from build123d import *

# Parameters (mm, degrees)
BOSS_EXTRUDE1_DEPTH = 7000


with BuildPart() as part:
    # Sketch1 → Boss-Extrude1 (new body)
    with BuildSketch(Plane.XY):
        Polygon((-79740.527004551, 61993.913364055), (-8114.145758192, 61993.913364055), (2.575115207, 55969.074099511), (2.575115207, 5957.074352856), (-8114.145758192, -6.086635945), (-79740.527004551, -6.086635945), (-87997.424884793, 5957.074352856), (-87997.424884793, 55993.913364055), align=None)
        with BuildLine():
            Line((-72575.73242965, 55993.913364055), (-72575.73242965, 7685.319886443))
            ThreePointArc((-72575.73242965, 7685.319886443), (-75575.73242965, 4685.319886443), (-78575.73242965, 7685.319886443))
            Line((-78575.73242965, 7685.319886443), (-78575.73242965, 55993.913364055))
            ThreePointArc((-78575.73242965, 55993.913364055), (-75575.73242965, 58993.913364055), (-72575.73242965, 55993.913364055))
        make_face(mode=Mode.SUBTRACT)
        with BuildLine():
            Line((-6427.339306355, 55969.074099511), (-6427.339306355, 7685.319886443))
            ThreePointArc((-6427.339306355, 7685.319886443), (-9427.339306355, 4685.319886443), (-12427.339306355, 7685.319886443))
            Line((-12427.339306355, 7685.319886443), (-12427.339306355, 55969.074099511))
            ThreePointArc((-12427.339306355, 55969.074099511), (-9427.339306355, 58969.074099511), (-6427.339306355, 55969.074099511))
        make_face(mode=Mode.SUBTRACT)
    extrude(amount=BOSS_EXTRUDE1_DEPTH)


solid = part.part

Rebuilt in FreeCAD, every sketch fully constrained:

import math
import FreeCAD as App
import Part
import Sketcher
Q = App.Units.Quantity


def add_polygon(sketch, points):
    """Adds a closed chain of lines whose ends are joined by coincident constraints."""
    first, n = sketch.GeometryCount, len(points)
    for a, b in zip(points, points[1:] + points[:1]):
        sketch.addGeometry(Part.LineSegment(App.Vector(*a, 0), App.Vector(*b, 0)), False)
    for i in range(n):
        sketch.addConstraint(Sketcher.Constraint("Coincident", first + i, 2, first + (i + 1) % n, 1))

doc = App.newDocument("Part")
params = doc.addObject("Spreadsheet::Sheet", "Params")
for row, (alias, value) in enumerate([
    ("sketch1_radius", "3000 mm"),
    ("pad1_length", "7000 mm"),
], start=1):
    params.set(f"A{row}", alias)
    params.set(f"B{row}", "=" + value)
    params.setAlias(f"B{row}", alias)

body = doc.addObject("PartDesign::Body", "Body")

# Sketch on XY plane
sketch1 = body.newObject("Sketcher::SketchObject", "Sketch")
sketch1.AttachmentSupport = (doc.getObject("XY_Plane"), [""])
sketch1.MapMode = "FlatFace"
add_polygon(sketch1, [(-8114, 61994), (-79741, 61994), (-87997, 55994), (-87997, 5957), (-79741, -6), (-8114, -6), (3, 5957), (3, 55969)])  # lines 0-7
sketch1.addGeometry(Part.LineSegment(App.Vector(-6427, 55969, 0), App.Vector(-6427, 7685, 0)), False)  # 8
sketch1.addGeometry(Part.ArcOfCircle(Part.Circle(App.Vector(-9427, 7685, 0), App.Vector(0, 0, 1), 3000), math.radians(180), math.radians(360)), False)  # 9
sketch1.addGeometry(Part.LineSegment(App.Vector(-12427, 7685, 0), App.Vector(-12427, 55969, 0)), False)  # 10
sketch1.addGeometry(Part.ArcOfCircle(Part.Circle(App.Vector(-9427, 55969, 0), App.Vector(0, 0, 1), 3000), math.radians(0), math.radians(180)), False)  # 11
sketch1.addGeometry(Part.LineSegment(App.Vector(-72576, 55994, 0), App.Vector(-72576, 7685, 0)), False)  # 12
sketch1.addGeometry(Part.ArcOfCircle(Part.Circle(App.Vector(-75576, 7685, 0), App.Vector(0, 0, 1), 3000), math.radians(180), math.radians(360)), False)  # 13
sketch1.addGeometry(Part.LineSegment(App.Vector(-78576, 7685, 0), App.Vector(-78576, 55994, 0)), False)  # 14
sketch1.addGeometry(Part.ArcOfCircle(Part.Circle(App.Vector(-75576, 55994, 0), App.Vector(0, 0, 1), 3000), math.radians(0), math.radians(180)), False)  # 15
sketch1.addConstraint(Sketcher.Constraint("Coincident", 8, 2, 9, 2))
sketch1.addConstraint(Sketcher.Constraint("Coincident", 9, 1, 10, 1))
sketch1.addConstraint(Sketcher.Constraint("Coincident", 10, 2, 11, 2))
sketch1.addConstraint(Sketcher.Constraint("Coincident", 11, 1, 8, 1))
sketch1.addConstraint(Sketcher.Constraint("Coincident", 12, 2, 13, 2))
sketch1.addConstraint(Sketcher.Constraint("Coincident", 13, 1, 14, 1))
sketch1.addConstraint(Sketcher.Constraint("Coincident", 14, 2, 15, 2))
sketch1.addConstraint(Sketcher.Constraint("Coincident", 15, 1, 12, 1))
sketch1.addConstraint(Sketcher.Constraint("Horizontal", 0))
sketch1.addConstraint(Sketcher.Constraint("Vertical", 2))
sketch1.addConstraint(Sketcher.Constraint("Horizontal", 4))
sketch1.addConstraint(Sketcher.Constraint("Vertical", 6))
sketch1.addConstraint(Sketcher.Constraint("Vertical", 8))
sketch1.addConstraint(Sketcher.Constraint("Vertical", 10))
sketch1.addConstraint(Sketcher.Constraint("Vertical", 12))
sketch1.addConstraint(Sketcher.Constraint("Vertical", 14))
sketch1.addConstraint(Sketcher.Constraint("Equal", 11, 13))
sketch1.addConstraint(Sketcher.Constraint("Horizontal", 9, 3, 13, 3))
sketch1.addConstraint(Sketcher.Constraint("Horizontal", 15, 3, 1, 2))
sketch1.addConstraint(Sketcher.Constraint("Horizontal", 2, 2, 5, 2))
sketch1.addConstraint(Sketcher.Constraint("Horizontal", 11, 3, 6, 2))
sketch1.addConstraint(Sketcher.Constraint("Horizontal", 13, 3, 8, 2))
sketch1.addConstraint(Sketcher.Constraint("Horizontal", 6, 2, 10, 2))
sketch1.addConstraint(Sketcher.Constraint("Horizontal", 1, 2, 14, 2))
sketch1.addConstraint(Sketcher.Constraint("Vertical", 0, 2, 3, 2))
sketch1.addConstraint(Sketcher.Constraint("Vertical", 4, 2, 7, 2))
sketch1.addConstraint(Sketcher.Constraint("Equal", 8, 10))
sketch1.addConstraint(Sketcher.Constraint("Equal", 12, 14))
sketch1.addConstraint(Sketcher.Constraint("Radius", 9, Q("3000 mm")))
sketch1.addConstraint(Sketcher.Constraint("DistanceY", 15, 3, 0, 2, Q("6000 mm")))
sketch1.addConstraint(Sketcher.Constraint("DistanceY", 3, 2, 15, 3, Q("56000 mm")))
sketch1.addConstraint(Sketcher.Constraint("DistanceY", 2, 2, 2, 1, Q("50036.839011 mm")))
sketch1.addConstraint(Sketcher.Constraint("DistanceY", -1, 1, 11, 3, Q("55969.0741 mm")))
sketch1.addConstraint(Sketcher.Constraint("DistanceX", 0, 2, 11, 3, Q("70313.187698 mm")))
sketch1.addConstraint(Sketcher.Constraint("DistanceX", 0, 2, 0, 1, Q("71626.381246 mm")))
sketch1.addConstraint(Sketcher.Constraint("DistanceY", 6, 1, 6, 2, Q("50011.999747 mm")))
sketch1.addConstraint(Sketcher.Constraint("DistanceY", 8, 2, 8, 1, Q("48283.754213 mm")))
sketch1.addConstraint(Sketcher.Constraint("DistanceY", 12, 2, 12, 1, Q("48308.593478 mm")))
sketch1.addConstraint(Sketcher.Constraint("DistanceX", 13, 3, -1, 1, Q("75575.73243 mm")))
sketch1.addConstraint(Sketcher.Constraint("DistanceX", 4, 2, -1, 1, Q("8114.145758 mm")))
sketch1.addConstraint(Sketcher.Constraint("DistanceX", 1, 2, 0, 2, Q("8256.89788 mm")))
sketch1.addConstraint(Sketcher.Constraint("DistanceX", 9, 3, 5, 2, Q("9429.914422 mm")))
sketch1.addConstraint(Sketcher.Constraint("DistanceY", -1, 1, 9, 3, Q("7685.319886 mm")))
sketch1.addConstraint(Sketcher.Constraint("DistanceY", -1, 1, 12, 2, Q("7685.319886 mm")))
sketch1.setExpression("Constraints[36]", "Params.sketch1_radius")
pad1 = body.newObject("PartDesign::Pad", "Pad")
pad1.Profile = sketch1
pad1.setExpression("Length", "Params.pad1_length")

doc.recompute()
